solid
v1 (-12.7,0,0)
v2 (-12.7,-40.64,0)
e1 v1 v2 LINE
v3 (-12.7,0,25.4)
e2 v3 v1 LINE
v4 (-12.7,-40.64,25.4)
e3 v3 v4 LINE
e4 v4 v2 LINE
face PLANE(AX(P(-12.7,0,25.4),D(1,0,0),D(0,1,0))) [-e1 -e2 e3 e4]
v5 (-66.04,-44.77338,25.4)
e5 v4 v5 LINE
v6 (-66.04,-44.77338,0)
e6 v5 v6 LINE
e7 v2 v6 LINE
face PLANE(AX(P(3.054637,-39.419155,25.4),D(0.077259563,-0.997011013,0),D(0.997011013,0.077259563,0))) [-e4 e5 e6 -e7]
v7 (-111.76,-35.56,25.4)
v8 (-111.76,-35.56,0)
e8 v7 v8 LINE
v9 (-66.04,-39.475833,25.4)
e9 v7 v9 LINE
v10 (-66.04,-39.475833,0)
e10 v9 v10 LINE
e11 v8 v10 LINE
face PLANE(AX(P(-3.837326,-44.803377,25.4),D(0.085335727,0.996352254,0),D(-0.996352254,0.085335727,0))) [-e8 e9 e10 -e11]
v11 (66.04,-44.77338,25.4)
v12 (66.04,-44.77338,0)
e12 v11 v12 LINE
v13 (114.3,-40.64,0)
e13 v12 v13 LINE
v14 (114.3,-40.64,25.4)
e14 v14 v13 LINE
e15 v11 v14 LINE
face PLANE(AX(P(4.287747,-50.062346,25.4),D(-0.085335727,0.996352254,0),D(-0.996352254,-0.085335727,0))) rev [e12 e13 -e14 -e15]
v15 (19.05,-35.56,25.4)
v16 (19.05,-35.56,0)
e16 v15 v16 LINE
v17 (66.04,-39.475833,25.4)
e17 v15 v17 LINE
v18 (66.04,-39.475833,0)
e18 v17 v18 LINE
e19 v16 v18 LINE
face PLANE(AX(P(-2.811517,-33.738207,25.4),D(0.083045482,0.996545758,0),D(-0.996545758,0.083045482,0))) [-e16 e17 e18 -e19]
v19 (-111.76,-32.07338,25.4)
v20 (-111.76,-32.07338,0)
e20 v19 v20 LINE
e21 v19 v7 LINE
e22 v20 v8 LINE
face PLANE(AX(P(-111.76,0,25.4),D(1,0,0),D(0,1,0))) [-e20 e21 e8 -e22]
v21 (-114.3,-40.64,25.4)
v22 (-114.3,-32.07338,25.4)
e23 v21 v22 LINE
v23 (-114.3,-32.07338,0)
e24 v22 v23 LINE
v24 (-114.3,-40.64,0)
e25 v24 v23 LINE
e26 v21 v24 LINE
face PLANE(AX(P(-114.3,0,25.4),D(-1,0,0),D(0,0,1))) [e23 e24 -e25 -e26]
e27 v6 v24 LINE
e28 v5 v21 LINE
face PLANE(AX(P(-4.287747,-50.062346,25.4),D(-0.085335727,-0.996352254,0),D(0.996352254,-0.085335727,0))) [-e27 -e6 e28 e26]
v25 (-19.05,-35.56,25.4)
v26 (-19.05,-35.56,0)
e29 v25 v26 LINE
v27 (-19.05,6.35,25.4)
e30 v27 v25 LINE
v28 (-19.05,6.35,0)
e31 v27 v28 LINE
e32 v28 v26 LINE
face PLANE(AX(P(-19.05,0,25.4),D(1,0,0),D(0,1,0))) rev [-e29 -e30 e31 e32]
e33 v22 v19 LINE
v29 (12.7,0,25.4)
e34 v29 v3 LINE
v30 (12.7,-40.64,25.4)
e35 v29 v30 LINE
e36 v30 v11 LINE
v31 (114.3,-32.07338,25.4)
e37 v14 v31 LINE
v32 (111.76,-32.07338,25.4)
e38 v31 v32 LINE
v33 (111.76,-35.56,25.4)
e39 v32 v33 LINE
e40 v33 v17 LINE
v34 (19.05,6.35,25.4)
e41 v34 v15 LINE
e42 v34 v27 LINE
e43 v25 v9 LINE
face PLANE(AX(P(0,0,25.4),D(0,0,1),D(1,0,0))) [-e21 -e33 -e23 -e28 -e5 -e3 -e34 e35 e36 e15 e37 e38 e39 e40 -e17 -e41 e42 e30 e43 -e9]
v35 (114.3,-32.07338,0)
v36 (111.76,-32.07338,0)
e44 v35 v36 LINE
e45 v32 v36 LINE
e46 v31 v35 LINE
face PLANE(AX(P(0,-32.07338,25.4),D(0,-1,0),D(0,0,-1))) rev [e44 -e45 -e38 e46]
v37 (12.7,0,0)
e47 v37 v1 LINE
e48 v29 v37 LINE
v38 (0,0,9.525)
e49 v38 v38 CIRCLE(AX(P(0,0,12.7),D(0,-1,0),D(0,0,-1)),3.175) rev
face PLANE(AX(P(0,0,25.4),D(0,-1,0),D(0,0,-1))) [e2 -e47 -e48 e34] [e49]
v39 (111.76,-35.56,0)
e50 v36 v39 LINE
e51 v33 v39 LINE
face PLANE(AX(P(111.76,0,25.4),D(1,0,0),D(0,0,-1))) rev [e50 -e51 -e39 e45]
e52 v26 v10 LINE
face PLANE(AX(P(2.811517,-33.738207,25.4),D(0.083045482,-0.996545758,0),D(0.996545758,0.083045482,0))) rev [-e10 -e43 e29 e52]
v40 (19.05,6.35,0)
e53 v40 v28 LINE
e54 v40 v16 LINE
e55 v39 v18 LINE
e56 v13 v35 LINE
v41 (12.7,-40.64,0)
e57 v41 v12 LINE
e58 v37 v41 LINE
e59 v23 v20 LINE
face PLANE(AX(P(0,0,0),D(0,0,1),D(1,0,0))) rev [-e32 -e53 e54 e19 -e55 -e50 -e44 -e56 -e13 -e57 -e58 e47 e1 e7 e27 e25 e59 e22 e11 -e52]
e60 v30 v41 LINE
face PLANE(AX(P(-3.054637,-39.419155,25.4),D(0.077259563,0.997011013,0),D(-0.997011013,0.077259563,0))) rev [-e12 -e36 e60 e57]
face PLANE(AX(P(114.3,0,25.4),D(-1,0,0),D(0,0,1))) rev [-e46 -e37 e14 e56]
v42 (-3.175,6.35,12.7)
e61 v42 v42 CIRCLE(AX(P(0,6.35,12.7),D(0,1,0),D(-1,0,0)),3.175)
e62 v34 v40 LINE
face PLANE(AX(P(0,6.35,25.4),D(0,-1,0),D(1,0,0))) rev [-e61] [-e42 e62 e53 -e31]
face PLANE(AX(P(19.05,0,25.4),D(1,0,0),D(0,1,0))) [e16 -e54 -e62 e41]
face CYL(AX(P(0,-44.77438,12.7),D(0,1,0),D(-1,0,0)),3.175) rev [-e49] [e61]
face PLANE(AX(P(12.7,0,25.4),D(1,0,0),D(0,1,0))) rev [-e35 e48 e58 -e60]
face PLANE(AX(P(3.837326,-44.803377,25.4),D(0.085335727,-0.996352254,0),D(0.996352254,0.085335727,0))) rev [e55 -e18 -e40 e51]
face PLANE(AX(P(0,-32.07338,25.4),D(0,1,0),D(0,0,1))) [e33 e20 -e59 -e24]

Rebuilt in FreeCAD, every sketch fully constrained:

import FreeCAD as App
import Part
import Sketcher
from FreeCAD import Vector
Q = App.Units.Quantity

doc = App.newDocument("Part")
body = doc.addObject("PartDesign::Body", "Body")

sketch1 = body.newObject("Sketcher::SketchObject", "Sketch")
sketch1.AttachmentSupport = (doc.getObject("XY_Plane"), [""])
sketch1.MapMode = "FlatFace"
sketch1.addGeometry(Part.LineSegment(Vector(12.7, 0, 0), Vector(12.7, -40.6, 0)), False)
sketch1.addGeometry(Part.LineSegment(Vector(12.7, -40.6, 0), Vector(66, -44.8, 0)), False)
sketch1.addGeometry(Part.LineSegment(Vector(66, -44.8, 0), Vector(114.3, -40.6, 0)), False)
sketch1.addGeometry(Part.LineSegment(Vector(114.3, -40.6, 0), Vector(114.3, -32.1, 0)), False)
sketch1.addGeometry(Part.LineSegment(Vector(114.3, -32.1, 0), Vector(111.8, -32.1, 0)), False)
sketch1.addGeometry(Part.LineSegment(Vector(111.8, -32.1, 0), Vector(111.8, -35.6, 0)), False)
sketch1.addGeometry(Part.LineSegment(Vector(111.8, -35.6, 0), Vector(66, -39.5, 0)), False)
sketch1.addGeometry(Part.LineSegment(Vector(66, -39.5, 0), Vector(19.1, -35.6, 0)), False)
sketch1.addGeometry(Part.LineSegment(Vector(19.1, -35.6, 0), Vector(19.1, 6.3, 0)), False)
sketch1.addGeometry(Part.LineSegment(Vector(19.1, 6.3, 0), Vector(-19.1, 6.3, 0)), False)
sketch1.addGeometry(Part.LineSegment(Vector(-19.1, 6.3, 0), Vector(-19.1, -35.6, 0)), False)
sketch1.addGeometry(Part.LineSegment(Vector(-19.1, -35.6, 0), Vector(-66, -39.5, 0)), False)
sketch1.addGeometry(Part.LineSegment(Vector(-66, -39.5, 0), Vector(-111.8, -35.6, 0)), False)
sketch1.addGeometry(Part.LineSegment(Vector(-111.8, -35.6, 0), Vector(-111.8, -32.1, 0)), False)
sketch1.addGeometry(Part.LineSegment(Vector(-111.8, -32.1, 0), Vector(-114.3, -32.1, 0)), False)
sketch1.addGeometry(Part.LineSegment(Vector(-114.3, -32.1, 0), Vector(-114.3, -40.6, 0)), False)
sketch1.addGeometry(Part.LineSegment(Vector(-114.3, -40.6, 0), Vector(-66, -44.8, 0)), False)
sketch1.addGeometry(Part.LineSegment(Vector(-66, -44.8, 0), Vector(-12.7, -40.6, 0)), False)
sketch1.addGeometry(Part.LineSegment(Vector(-12.7, -40.6, 0), Vector(-12.7, 0, 0)), False)
sketch1.addGeometry(Part.LineSegment(Vector(-12.7, 0, 0), Vector(12.7, 0, 0)), False)
sketch1.addConstraint(Sketcher.Constraint("Coincident", 0, 2, 1, 1))
sketch1.addConstraint(Sketcher.Constraint("Coincident", 1, 2, 2, 1))
sketch1.addConstraint(Sketcher.Constraint("Coincident", 2, 2, 3, 1))
sketch1.addConstraint(Sketcher.Constraint("Coincident", 3, 2, 4, 1))
sketch1.addConstraint(Sketcher.Constraint("Coincident", 4, 2, 5, 1))
sketch1.addConstraint(Sketcher.Constraint("Coincident", 5, 2, 6, 1))
sketch1.addConstraint(Sketcher.Constraint("Coincident", 6, 2, 7, 1))
sketch1.addConstraint(Sketcher.Constraint("Coincident", 7, 2, 8, 1))
sketch1.addConstraint(Sketcher.Constraint("Coincident", 8, 2, 9, 1))
sketch1.addConstraint(Sketcher.Constraint("Coincident", 9, 2, 10, 1))
sketch1.addConstraint(Sketcher.Constraint("Coincident", 10, 2, 11, 1))
sketch1.addConstraint(Sketcher.Constraint("Coincident", 11, 2, 12, 1))
sketch1.addConstraint(Sketcher.Constraint("Coincident", 12, 2, 13, 1))
sketch1.addConstraint(Sketcher.Constraint("Coincident", 13, 2, 14, 1))
sketch1.addConstraint(Sketcher.Constraint("Coincident", 14, 2, 15, 1))
sketch1.addConstraint(Sketcher.Constraint("Coincident", 15, 2, 16, 1))
sketch1.addConstraint(Sketcher.Constraint("Coincident", 16, 2, 17, 1))
sketch1.addConstraint(Sketcher.Constraint("Coincident", 17, 2, 18, 1))
sketch1.addConstraint(Sketcher.Constraint("Coincident", 18, 2, 19, 1))
sketch1.addConstraint(Sketcher.Constraint("Coincident", 19, 2, 0, 1))
sketch1.addConstraint(Sketcher.Constraint("Vertical", 0))
sketch1.addConstraint(Sketcher.Constraint("Vertical", 3))
sketch1.addConstraint(Sketcher.Constraint("Horizontal", 4))
sketch1.addConstraint(Sketcher.Constraint("Vertical", 5))
sketch1.addConstraint(Sketcher.Constraint("Vertical", 8))
sketch1.addConstraint(Sketcher.Constraint("Horizontal", 9))
sketch1.addConstraint(Sketcher.Constraint("Vertical", 10))
sketch1.addConstraint(Sketcher.Constraint("Vertical", 13))
sketch1.addConstraint(Sketcher.Constraint("Horizontal", 14))
sketch1.addConstraint(Sketcher.Constraint("Vertical", 15))
sketch1.addConstraint(Sketcher.Constraint("Vertical", 18))
sketch1.addConstraint(Sketcher.Constraint("Horizontal", 19))
sketch1.addConstraint(Sketcher.Constraint("Symmetric", 18, 2, 19, 2, -1, 1))
sketch1.addConstraint(Sketcher.Constraint("Symmetric", 7, 2, 10, 2, -2))
sketch1.addConstraint(Sketcher.Constraint("Symmetric", 6, 2, 11, 2, -2))
sketch1.addConstraint(Sketcher.Constraint("Symmetric", 5, 2, 12, 2, -2))
sketch1.addConstraint(Sketcher.Constraint("Symmetric", 3, 2, 14, 2, -2))
sketch1.addConstraint(Sketcher.Constraint("Symmetric", 1, 2, 16, 2, -2))
sketch1.addConstraint(Sketcher.Constraint("Parallel", 2, 6))
sketch1.addConstraint(Sketcher.Constraint("Parallel", 12, 16))
sketch1.addConstraint(Sketcher.Constraint("Horizontal", 0, 2, 2, 2))
sketch1.addConstraint(Sketcher.Constraint("Horizontal", 5, 2, 7, 2))
sketch1.addConstraint(Sketcher.Constraint("Horizontal", 15, 2, 17, 2))
sketch1.addConstraint(Sketcher.Constraint("Vertical", 1, 2, 6, 2))
sketch1.addConstraint(Sketcher.Constraint("DistanceX", 19, 1, 19, 2, Q("1 in")))
sketch1.addConstraint(Sketcher.Constraint("DistanceX", 4, 2, 4, 1, Q("0.1 in")))
sketch1.addConstraint(Sketcher.Constraint("DistanceX", 9, 2, 9, 1, Q("1.5 in")))
sketch1.addConstraint(Sketcher.Constraint("DistanceY", 0, 2, 0, 1, Q("1.6 in")))
sketch1.addConstraint(Sketcher.Constraint("DistanceX", 0, 2, 2, 2, Q("4 in")))
sketch1.addConstraint(Sketcher.Constraint("DistanceY", 8, 1, 8, 2, Q("1.65 in")))
sketch1.addConstraint(Sketcher.Constraint("DistanceX", -1, 1, 1, 2, Q("2.6 in")))
sketch1.addConstraint(Sketcher.Constraint("DistanceY", 5, 2, -1, 1, Q("1.4 in")))
sketch1.addConstraint(Sketcher.Constraint("DistanceY", 1, 2, 3, 2, Q("0.5 in")))
sketch1.addConstraint(Sketcher.Constraint("DistanceY", 3, 1, 3, 2, 8.56662))
pad1 = body.newObject("PartDesign::Pad", "Pad")
pad1.Profile = sketch1
pad1.Length = Q("1 in")

sketch2 = body.newObject("Sketcher::SketchObject", "Sketch001")
sketch2.AttachmentSupport = (doc.getObject("XZ_Plane"), [""])
sketch2.MapMode = "FlatFace"
sketch2.AttachmentOffset = App.Placement(Vector(0, 0, -0.25 * 25.4), App.Rotation())
sketch2.addGeometry(Part.Circle(Vector(0, 12.7, 0), Vector(0, 0, 1), 3.2), False)
sketch2.addConstraint(Sketcher.Constraint("PointOnObject", 0, 3, -2))
sketch2.addConstraint(Sketcher.Constraint("Diameter", 0, Q("0.25 in")))
sketch2.addConstraint(Sketcher.Constraint("DistanceY", -1, 1, 0, 3, Q("0.5 in")))
pocket1 = body.newObject("PartDesign::Pocket", "Pocket")
pocket1.Profile = sketch2
pocket1.Type = "UpToFirst"
pocket1.Reversed = True

doc.recompute()
